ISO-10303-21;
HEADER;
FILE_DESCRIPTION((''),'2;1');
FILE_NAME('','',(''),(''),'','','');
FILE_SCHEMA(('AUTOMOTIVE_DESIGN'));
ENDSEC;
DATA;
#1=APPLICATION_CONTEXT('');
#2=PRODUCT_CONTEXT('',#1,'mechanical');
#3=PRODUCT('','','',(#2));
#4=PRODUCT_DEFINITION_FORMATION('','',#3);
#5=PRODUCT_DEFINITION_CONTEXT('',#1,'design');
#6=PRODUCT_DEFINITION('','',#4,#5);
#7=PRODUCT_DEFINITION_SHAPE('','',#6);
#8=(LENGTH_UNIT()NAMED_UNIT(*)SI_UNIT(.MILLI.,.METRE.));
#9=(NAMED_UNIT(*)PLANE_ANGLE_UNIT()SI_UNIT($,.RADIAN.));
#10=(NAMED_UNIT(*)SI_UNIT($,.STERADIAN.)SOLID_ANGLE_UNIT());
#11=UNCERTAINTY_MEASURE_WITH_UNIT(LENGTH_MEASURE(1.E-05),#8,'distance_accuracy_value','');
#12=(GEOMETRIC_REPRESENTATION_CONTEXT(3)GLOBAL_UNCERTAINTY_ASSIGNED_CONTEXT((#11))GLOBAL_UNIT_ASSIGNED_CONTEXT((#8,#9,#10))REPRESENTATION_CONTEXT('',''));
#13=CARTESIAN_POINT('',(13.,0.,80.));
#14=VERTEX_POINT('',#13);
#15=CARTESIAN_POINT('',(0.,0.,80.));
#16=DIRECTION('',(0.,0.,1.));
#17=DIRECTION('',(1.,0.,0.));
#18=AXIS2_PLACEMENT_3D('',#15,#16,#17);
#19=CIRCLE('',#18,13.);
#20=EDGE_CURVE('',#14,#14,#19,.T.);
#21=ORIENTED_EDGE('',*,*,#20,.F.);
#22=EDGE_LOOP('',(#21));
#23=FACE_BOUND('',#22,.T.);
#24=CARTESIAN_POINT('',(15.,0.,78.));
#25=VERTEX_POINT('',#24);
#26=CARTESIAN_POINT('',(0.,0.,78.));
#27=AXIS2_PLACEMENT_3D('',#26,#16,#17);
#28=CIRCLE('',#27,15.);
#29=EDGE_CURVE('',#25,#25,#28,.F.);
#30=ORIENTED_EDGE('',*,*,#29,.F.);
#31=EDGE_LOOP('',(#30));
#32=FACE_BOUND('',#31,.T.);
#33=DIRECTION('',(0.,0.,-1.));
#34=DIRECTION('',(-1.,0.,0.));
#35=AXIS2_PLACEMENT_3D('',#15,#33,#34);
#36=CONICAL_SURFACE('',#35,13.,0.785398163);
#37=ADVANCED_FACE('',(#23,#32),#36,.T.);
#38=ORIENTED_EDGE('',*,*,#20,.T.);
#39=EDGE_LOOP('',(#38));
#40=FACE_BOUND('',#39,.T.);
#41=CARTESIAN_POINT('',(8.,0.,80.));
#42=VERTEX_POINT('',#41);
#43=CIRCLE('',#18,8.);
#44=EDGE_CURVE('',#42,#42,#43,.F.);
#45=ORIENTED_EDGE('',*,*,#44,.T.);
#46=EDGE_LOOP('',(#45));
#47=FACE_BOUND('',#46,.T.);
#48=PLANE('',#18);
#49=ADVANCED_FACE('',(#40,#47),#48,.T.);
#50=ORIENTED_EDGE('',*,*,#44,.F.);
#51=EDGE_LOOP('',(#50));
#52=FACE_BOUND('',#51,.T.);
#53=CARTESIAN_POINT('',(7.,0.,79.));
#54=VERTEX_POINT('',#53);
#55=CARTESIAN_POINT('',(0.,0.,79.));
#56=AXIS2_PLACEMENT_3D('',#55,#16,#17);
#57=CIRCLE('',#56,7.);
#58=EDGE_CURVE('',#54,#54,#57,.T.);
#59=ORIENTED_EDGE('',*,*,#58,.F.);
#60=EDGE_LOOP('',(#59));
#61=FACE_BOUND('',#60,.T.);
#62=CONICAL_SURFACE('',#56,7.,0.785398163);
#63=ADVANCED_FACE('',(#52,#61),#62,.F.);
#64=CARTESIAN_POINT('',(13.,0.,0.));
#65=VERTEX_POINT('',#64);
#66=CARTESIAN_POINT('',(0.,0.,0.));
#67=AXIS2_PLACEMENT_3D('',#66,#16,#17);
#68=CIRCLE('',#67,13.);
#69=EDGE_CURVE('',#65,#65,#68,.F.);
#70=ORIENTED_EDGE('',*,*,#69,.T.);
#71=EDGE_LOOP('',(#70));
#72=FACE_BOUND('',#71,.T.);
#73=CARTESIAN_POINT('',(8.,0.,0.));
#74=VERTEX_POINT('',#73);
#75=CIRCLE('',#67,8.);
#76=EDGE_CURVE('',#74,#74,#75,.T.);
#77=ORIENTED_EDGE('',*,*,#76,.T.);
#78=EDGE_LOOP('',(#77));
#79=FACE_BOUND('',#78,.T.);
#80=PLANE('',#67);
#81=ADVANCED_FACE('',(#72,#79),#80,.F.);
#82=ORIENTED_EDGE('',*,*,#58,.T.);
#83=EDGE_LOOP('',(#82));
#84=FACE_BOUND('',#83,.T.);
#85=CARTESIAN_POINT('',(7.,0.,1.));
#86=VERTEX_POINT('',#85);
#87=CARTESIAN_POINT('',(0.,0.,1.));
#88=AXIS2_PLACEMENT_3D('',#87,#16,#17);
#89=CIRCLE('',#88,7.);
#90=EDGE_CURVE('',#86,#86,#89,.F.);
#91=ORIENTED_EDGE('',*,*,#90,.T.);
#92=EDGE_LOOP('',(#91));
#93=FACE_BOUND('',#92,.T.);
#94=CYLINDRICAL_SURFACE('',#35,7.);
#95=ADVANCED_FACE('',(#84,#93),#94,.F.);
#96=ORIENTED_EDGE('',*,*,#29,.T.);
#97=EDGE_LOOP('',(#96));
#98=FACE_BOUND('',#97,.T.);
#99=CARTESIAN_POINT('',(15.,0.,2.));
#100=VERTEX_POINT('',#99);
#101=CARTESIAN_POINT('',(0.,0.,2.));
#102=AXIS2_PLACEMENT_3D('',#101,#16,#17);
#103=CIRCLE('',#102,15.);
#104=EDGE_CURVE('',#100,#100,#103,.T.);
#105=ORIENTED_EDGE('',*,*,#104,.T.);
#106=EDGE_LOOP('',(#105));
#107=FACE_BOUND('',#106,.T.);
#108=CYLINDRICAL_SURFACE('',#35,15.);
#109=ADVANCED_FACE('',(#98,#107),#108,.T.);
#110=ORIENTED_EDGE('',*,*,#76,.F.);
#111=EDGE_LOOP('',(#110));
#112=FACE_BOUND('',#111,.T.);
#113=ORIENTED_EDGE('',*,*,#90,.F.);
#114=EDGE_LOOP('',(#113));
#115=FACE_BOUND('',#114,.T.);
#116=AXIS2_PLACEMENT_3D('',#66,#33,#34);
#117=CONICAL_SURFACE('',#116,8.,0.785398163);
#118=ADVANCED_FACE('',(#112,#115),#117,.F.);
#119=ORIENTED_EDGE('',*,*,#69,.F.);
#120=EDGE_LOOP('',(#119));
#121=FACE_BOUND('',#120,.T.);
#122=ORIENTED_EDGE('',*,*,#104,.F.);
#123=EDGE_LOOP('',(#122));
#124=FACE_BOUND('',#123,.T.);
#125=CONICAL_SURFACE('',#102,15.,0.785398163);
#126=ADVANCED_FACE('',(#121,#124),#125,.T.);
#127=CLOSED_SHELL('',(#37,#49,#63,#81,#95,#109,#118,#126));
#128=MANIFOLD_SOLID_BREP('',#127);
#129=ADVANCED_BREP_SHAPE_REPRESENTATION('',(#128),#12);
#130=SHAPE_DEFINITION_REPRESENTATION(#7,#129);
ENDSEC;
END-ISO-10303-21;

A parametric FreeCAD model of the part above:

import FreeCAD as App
import Part
import Sketcher
from FreeCAD import Vector
Q = App.Units.Quantity


def edges_at(feature, points):
    """Names of the edges that pass closest to the given points."""
    edges = feature.Shape.Edges
    near = lambda p: min(range(len(edges)), key=lambda i: edges[i].distToShape(Part.Vertex(*p))[0])
    return sorted({f"Edge{near(p) + 1}" for p in points})

doc = App.newDocument("Part")
body = doc.addObject("PartDesign::Body", "Body")

# Sketch on XY plane
sketch1 = body.newObject("Sketcher::SketchObject", "Sketch")
sketch1.AttachmentSupport = (doc.getObject("XY_Plane"), [""])
sketch1.MapMode = "FlatFace"
sketch1.addGeometry(Part.Circle(Vector(0, 0, 0), Vector(0, 0, 1), 15), False)
sketch1.addGeometry(Part.Circle(Vector(0, 0, 0), Vector(0, 0, 1), 7), False)
sketch1.addConstraint(Sketcher.Constraint("Coincident", 0, 3, -1, 1))
sketch1.addConstraint(Sketcher.Constraint("Coincident", 1, 3, -1, 1))
sketch1.addConstraint(Sketcher.Constraint("Diameter", 0, Q("30 mm")))
sketch1.addConstraint(Sketcher.Constraint("Diameter", 1, Q("14 mm")))
pad1 = body.newObject("PartDesign::Pad", "Pad")
pad1.Profile = sketch1
pad1.Length = 80
doc.recompute()

chamfer = body.newObject("PartDesign::Chamfer", "Chamfer")
chamfer.Base = (pad1, edges_at(pad1, [(-7, 0, 0), (-7, 0, 80)]))
chamfer.Size = 1
doc.recompute()

chamfer2 = body.newObject("PartDesign::Chamfer", "Chamfer001")
chamfer2.Base = (chamfer, edges_at(chamfer, [(-15, 0, 0), (-15, 0, 80)]))
chamfer2.Size = 2

doc.recompute()
